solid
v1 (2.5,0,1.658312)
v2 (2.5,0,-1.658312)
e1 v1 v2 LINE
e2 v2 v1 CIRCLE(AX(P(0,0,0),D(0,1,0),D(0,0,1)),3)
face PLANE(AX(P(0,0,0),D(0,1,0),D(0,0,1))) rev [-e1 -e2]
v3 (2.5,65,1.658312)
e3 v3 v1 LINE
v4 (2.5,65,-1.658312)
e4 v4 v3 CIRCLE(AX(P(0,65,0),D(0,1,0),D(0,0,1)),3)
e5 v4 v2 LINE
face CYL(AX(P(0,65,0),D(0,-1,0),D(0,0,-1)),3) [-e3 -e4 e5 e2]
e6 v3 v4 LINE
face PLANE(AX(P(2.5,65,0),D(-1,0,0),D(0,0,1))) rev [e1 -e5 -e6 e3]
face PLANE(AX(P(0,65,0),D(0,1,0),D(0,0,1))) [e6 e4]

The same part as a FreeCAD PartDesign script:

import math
import FreeCAD as App
import Part
import Sketcher

doc = App.newDocument("Part")
body = doc.addObject("PartDesign::Body", "Body")

# Sketch on XZ plane
sketch1 = doc.addObject("Sketcher::SketchObject", "Sketch")
body.addObject(sketch1)
sketch1.AttachmentSupport = (doc.XZ_Plane, [""])
sketch1.MapMode = "FlatFace"
sketch1.addGeometry(Part.ArcOfCircle(Part.Circle(App.Vector(0, 0, 0), App.Vector(0, 0, 1), 3), math.radians(180), math.radians(326.44269)), False)
sketch1.addGeometry(Part.ArcOfCircle(Part.Circle(App.Vector(0, 0, 0), App.Vector(0, 0, 1), 3), math.radians(33.55731), math.radians(180)), False)
sketch1.addGeometry(Part.LineSegment(App.Vector(2.5, 1.658312, 0), App.Vector(2.5, -1.658312, 0)), False)
sketch1.addConstraint(Sketcher.Constraint("Tangent", 0, 1, 1, 2))
sketch1.addConstraint(Sketcher.Constraint("Coincident", 1, 1, 2, 1))
sketch1.addConstraint(Sketcher.Constraint("Coincident", 2, 2, 0, 2))
sketch1.addConstraint(Sketcher.Constraint("Vertical", 2))
sketch1.addConstraint(Sketcher.Constraint("Coincident", 0, 3, -1, 1))
sketch1.addConstraint(Sketcher.Constraint("Equal", 0, 1))
sketch1.addConstraint(Sketcher.Constraint("PointOnObject", 0, 1, -1))
sketch1.addConstraint(Sketcher.Constraint("Radius", 0, 3.0))
sketch1.addConstraint(Sketcher.Constraint("DistanceX", -1, 1, 1, 1, 2.5))
pad1 = doc.addObject("PartDesign::Pad", "Pad")
body.addObject(pad1)
pad1.Profile = sketch1
pad1.Length = 65
pad1.Reversed = True

doc.recompute()
